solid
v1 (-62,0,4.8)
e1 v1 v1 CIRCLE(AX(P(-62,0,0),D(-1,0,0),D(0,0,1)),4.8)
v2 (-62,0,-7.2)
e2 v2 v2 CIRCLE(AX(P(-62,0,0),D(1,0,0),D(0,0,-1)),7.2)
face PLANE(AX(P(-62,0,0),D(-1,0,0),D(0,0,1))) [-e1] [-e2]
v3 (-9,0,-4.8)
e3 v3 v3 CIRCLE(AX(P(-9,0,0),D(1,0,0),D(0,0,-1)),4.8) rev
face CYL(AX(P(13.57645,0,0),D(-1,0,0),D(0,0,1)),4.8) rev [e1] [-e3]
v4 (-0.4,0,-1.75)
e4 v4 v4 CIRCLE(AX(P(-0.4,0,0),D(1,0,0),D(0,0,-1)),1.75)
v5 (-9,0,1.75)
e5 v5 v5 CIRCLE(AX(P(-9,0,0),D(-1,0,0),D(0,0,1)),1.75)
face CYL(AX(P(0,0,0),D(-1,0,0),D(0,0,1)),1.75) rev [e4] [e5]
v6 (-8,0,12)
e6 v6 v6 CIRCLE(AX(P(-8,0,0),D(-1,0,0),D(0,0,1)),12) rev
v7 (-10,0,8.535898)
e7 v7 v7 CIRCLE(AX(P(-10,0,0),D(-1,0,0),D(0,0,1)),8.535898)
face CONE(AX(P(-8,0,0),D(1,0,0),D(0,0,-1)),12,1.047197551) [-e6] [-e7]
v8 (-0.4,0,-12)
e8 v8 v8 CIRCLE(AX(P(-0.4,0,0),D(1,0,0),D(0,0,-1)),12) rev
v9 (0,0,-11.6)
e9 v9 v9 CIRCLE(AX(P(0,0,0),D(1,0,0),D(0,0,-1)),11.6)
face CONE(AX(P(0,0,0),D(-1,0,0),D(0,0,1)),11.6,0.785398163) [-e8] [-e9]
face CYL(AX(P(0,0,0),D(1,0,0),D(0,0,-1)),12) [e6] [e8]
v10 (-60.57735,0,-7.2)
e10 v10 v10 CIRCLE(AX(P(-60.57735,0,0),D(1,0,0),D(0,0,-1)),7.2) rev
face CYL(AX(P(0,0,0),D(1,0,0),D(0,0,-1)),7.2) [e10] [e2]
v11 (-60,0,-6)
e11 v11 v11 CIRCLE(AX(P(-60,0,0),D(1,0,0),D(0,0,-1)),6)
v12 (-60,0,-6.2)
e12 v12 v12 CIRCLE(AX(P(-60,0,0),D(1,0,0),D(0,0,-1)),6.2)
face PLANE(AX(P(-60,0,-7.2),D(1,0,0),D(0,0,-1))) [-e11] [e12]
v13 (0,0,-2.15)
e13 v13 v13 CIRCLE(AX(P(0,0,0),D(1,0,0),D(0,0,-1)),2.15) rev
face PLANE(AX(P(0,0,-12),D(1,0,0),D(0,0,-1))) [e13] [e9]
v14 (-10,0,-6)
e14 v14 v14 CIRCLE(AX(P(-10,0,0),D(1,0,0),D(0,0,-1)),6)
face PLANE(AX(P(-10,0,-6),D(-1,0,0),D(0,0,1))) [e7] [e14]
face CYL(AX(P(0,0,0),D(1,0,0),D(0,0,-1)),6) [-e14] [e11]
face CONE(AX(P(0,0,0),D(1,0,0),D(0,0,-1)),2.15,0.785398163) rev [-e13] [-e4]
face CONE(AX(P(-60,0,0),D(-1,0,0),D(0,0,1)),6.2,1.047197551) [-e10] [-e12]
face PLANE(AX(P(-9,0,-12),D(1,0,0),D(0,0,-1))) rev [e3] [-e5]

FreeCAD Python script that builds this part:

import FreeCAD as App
import Part
import Sketcher
from FreeCAD import Vector
Q = App.Units.Quantity


def edges_at(feature, points):
    """Names of the edges that pass closest to the given points."""
    edges = feature.Shape.Edges
    near = lambda p: min(range(len(edges)), key=lambda i: edges[i].distToShape(Part.Vertex(*p))[0])
    return sorted({f"Edge{near(p) + 1}" for p in points})


def add_polygon(sketch, points):
    """Adds a closed chain of lines whose ends are joined by coincident constraints."""
    first, n = sketch.GeometryCount, len(points)
    for a, b in zip(points, points[1:] + points[:1]):
        sketch.addGeometry(Part.LineSegment(App.Vector(*a, 0), App.Vector(*b, 0)), False)
    for i in range(n):
        sketch.addConstraint(Sketcher.Constraint("Coincident", first + i, 2, first + (i + 1) % n, 1))

doc = App.newDocument("Part")
body = doc.addObject("PartDesign::Body", "Body")

sketch1 = doc.addObject("Sketcher::SketchObject", "Sketch")
body.addObject(sketch1)
sketch1.AttachmentSupport = (doc.XZ_Plane, [""])
sketch1.MapMode = "FlatFace"
add_polygon(sketch1, [(-62, -7.2), (-62, 0), (0, 0), (0, -12), (-10, -12), (-10, -6), (-60, -6), (-60, -7.2)])
sketch1.addConstraint(Sketcher.Constraint("Vertical", 0))
sketch1.addConstraint(Sketcher.Constraint("Horizontal", 1))
sketch1.addConstraint(Sketcher.Constraint("Vertical", 2))
sketch1.addConstraint(Sketcher.Constraint("Horizontal", 3))
sketch1.addConstraint(Sketcher.Constraint("Vertical", 4))
sketch1.addConstraint(Sketcher.Constraint("Horizontal", 5))
sketch1.addConstraint(Sketcher.Constraint("Vertical", 6))
sketch1.addConstraint(Sketcher.Constraint("Horizontal", 7))
sketch1.addConstraint(Sketcher.Constraint("Coincident", 1, 2, -1, 1))
sketch1.addConstraint(Sketcher.Constraint("DistanceX", 1, 1, 1, 2, Q("62 mm")))
sketch1.addConstraint(Sketcher.Constraint("DistanceX", 3, 2, 3, 1, Q("10 mm")))
sketch1.addConstraint(Sketcher.Constraint("DistanceX", 5, 2, 5, 1, Q("50 mm")))
sketch1.addConstraint(Sketcher.Constraint("DistanceY", 2, 2, 2, 1, Q("12 mm")))
sketch1.addConstraint(Sketcher.Constraint("DistanceY", 4, 1, 4, 2, Q("6 mm")))
sketch1.addConstraint(Sketcher.Constraint("DistanceY", 0, 1, 0, 2, Q("7.2 mm")))
revolution = doc.addObject("PartDesign::Revolution", "Revolution")
body.addObject(revolution)
revolution.Profile = sketch1
revolution.ReferenceAxis = (sketch1, ["H_Axis"])
revolution.Angle = 360
doc.recompute()

chamfer = doc.addObject("PartDesign::Chamfer", "Chamfer")
body.addObject(chamfer)
chamfer.Base = (revolution, edges_at(revolution, [(-60, 0, 7.2)]))
chamfer.ChamferType = "Two distances"
chamfer.Size = 1
chamfer.Size2 = 0.57735
doc.recompute()

chamfer2 = doc.addObject("PartDesign::Chamfer", "Chamfer001")
body.addObject(chamfer2)
chamfer2.Base = (chamfer, edges_at(chamfer, [(-10, 0, 12)]))
chamfer2.ChamferType = "Two distances"
chamfer2.Size = 2
chamfer2.Size2 = 3.464102
chamfer2.FlipDirection = True

sketch2 = doc.addObject("Sketcher::SketchObject", "Sketch001")
body.addObject(sketch2)
sketch2.AttachmentSupport = (doc.YZ_Plane, [""])
sketch2.MapMode = "FlatFace"
sketch2.AttachmentOffset = App.Placement(Vector(0, 0, -62), App.Rotation())
sketch2.addGeometry(Part.Circle(Vector(0, 0, 0), Vector(0, 0, 1), 4.8), False)
sketch2.addConstraint(Sketcher.Constraint("Coincident", 0, 3, -1, 1))
sketch2.addConstraint(Sketcher.Constraint("Diameter", 0, Q("9.6 mm")))
pocket1 = doc.addObject("PartDesign::Pocket", "Pocket")
body.addObject(pocket1)
pocket1.Profile = sketch2
pocket1.Length = 53
pocket1.Reversed = True

sketch3 = doc.addObject("Sketcher::SketchObject", "Sketch002")
body.addObject(sketch3)
sketch3.AttachmentSupport = (doc.YZ_Plane, [""])
sketch3.MapMode = "FlatFace"
sketch3.AttachmentOffset = App.Placement(Vector(0, 0, -9), App.Rotation())
sketch3.addGeometry(Part.Circle(Vector(0, 0, 0), Vector(0, 0, 1), 1.75), False)
sketch3.addConstraint(Sketcher.Constraint("Coincident", 0, 3, -1, 1))
sketch3.addConstraint(Sketcher.Constraint("Diameter", 0, Q("3.5 mm")))
pocket2 = doc.addObject("PartDesign::Pocket", "Pocket001")
body.addObject(pocket2)
pocket2.Profile = sketch3
pocket2.Type = "ThroughAll"
pocket2.Reversed = True
doc.recompute()

chamfer3 = doc.addObject("PartDesign::Chamfer", "Chamfer002")
body.addObject(chamfer3)
chamfer3.Base = (pocket2, edges_at(pocket2, [(0, 0, -1.75), (0, 0, 12)]))
chamfer3.Size = 0.4

doc.recompute()
